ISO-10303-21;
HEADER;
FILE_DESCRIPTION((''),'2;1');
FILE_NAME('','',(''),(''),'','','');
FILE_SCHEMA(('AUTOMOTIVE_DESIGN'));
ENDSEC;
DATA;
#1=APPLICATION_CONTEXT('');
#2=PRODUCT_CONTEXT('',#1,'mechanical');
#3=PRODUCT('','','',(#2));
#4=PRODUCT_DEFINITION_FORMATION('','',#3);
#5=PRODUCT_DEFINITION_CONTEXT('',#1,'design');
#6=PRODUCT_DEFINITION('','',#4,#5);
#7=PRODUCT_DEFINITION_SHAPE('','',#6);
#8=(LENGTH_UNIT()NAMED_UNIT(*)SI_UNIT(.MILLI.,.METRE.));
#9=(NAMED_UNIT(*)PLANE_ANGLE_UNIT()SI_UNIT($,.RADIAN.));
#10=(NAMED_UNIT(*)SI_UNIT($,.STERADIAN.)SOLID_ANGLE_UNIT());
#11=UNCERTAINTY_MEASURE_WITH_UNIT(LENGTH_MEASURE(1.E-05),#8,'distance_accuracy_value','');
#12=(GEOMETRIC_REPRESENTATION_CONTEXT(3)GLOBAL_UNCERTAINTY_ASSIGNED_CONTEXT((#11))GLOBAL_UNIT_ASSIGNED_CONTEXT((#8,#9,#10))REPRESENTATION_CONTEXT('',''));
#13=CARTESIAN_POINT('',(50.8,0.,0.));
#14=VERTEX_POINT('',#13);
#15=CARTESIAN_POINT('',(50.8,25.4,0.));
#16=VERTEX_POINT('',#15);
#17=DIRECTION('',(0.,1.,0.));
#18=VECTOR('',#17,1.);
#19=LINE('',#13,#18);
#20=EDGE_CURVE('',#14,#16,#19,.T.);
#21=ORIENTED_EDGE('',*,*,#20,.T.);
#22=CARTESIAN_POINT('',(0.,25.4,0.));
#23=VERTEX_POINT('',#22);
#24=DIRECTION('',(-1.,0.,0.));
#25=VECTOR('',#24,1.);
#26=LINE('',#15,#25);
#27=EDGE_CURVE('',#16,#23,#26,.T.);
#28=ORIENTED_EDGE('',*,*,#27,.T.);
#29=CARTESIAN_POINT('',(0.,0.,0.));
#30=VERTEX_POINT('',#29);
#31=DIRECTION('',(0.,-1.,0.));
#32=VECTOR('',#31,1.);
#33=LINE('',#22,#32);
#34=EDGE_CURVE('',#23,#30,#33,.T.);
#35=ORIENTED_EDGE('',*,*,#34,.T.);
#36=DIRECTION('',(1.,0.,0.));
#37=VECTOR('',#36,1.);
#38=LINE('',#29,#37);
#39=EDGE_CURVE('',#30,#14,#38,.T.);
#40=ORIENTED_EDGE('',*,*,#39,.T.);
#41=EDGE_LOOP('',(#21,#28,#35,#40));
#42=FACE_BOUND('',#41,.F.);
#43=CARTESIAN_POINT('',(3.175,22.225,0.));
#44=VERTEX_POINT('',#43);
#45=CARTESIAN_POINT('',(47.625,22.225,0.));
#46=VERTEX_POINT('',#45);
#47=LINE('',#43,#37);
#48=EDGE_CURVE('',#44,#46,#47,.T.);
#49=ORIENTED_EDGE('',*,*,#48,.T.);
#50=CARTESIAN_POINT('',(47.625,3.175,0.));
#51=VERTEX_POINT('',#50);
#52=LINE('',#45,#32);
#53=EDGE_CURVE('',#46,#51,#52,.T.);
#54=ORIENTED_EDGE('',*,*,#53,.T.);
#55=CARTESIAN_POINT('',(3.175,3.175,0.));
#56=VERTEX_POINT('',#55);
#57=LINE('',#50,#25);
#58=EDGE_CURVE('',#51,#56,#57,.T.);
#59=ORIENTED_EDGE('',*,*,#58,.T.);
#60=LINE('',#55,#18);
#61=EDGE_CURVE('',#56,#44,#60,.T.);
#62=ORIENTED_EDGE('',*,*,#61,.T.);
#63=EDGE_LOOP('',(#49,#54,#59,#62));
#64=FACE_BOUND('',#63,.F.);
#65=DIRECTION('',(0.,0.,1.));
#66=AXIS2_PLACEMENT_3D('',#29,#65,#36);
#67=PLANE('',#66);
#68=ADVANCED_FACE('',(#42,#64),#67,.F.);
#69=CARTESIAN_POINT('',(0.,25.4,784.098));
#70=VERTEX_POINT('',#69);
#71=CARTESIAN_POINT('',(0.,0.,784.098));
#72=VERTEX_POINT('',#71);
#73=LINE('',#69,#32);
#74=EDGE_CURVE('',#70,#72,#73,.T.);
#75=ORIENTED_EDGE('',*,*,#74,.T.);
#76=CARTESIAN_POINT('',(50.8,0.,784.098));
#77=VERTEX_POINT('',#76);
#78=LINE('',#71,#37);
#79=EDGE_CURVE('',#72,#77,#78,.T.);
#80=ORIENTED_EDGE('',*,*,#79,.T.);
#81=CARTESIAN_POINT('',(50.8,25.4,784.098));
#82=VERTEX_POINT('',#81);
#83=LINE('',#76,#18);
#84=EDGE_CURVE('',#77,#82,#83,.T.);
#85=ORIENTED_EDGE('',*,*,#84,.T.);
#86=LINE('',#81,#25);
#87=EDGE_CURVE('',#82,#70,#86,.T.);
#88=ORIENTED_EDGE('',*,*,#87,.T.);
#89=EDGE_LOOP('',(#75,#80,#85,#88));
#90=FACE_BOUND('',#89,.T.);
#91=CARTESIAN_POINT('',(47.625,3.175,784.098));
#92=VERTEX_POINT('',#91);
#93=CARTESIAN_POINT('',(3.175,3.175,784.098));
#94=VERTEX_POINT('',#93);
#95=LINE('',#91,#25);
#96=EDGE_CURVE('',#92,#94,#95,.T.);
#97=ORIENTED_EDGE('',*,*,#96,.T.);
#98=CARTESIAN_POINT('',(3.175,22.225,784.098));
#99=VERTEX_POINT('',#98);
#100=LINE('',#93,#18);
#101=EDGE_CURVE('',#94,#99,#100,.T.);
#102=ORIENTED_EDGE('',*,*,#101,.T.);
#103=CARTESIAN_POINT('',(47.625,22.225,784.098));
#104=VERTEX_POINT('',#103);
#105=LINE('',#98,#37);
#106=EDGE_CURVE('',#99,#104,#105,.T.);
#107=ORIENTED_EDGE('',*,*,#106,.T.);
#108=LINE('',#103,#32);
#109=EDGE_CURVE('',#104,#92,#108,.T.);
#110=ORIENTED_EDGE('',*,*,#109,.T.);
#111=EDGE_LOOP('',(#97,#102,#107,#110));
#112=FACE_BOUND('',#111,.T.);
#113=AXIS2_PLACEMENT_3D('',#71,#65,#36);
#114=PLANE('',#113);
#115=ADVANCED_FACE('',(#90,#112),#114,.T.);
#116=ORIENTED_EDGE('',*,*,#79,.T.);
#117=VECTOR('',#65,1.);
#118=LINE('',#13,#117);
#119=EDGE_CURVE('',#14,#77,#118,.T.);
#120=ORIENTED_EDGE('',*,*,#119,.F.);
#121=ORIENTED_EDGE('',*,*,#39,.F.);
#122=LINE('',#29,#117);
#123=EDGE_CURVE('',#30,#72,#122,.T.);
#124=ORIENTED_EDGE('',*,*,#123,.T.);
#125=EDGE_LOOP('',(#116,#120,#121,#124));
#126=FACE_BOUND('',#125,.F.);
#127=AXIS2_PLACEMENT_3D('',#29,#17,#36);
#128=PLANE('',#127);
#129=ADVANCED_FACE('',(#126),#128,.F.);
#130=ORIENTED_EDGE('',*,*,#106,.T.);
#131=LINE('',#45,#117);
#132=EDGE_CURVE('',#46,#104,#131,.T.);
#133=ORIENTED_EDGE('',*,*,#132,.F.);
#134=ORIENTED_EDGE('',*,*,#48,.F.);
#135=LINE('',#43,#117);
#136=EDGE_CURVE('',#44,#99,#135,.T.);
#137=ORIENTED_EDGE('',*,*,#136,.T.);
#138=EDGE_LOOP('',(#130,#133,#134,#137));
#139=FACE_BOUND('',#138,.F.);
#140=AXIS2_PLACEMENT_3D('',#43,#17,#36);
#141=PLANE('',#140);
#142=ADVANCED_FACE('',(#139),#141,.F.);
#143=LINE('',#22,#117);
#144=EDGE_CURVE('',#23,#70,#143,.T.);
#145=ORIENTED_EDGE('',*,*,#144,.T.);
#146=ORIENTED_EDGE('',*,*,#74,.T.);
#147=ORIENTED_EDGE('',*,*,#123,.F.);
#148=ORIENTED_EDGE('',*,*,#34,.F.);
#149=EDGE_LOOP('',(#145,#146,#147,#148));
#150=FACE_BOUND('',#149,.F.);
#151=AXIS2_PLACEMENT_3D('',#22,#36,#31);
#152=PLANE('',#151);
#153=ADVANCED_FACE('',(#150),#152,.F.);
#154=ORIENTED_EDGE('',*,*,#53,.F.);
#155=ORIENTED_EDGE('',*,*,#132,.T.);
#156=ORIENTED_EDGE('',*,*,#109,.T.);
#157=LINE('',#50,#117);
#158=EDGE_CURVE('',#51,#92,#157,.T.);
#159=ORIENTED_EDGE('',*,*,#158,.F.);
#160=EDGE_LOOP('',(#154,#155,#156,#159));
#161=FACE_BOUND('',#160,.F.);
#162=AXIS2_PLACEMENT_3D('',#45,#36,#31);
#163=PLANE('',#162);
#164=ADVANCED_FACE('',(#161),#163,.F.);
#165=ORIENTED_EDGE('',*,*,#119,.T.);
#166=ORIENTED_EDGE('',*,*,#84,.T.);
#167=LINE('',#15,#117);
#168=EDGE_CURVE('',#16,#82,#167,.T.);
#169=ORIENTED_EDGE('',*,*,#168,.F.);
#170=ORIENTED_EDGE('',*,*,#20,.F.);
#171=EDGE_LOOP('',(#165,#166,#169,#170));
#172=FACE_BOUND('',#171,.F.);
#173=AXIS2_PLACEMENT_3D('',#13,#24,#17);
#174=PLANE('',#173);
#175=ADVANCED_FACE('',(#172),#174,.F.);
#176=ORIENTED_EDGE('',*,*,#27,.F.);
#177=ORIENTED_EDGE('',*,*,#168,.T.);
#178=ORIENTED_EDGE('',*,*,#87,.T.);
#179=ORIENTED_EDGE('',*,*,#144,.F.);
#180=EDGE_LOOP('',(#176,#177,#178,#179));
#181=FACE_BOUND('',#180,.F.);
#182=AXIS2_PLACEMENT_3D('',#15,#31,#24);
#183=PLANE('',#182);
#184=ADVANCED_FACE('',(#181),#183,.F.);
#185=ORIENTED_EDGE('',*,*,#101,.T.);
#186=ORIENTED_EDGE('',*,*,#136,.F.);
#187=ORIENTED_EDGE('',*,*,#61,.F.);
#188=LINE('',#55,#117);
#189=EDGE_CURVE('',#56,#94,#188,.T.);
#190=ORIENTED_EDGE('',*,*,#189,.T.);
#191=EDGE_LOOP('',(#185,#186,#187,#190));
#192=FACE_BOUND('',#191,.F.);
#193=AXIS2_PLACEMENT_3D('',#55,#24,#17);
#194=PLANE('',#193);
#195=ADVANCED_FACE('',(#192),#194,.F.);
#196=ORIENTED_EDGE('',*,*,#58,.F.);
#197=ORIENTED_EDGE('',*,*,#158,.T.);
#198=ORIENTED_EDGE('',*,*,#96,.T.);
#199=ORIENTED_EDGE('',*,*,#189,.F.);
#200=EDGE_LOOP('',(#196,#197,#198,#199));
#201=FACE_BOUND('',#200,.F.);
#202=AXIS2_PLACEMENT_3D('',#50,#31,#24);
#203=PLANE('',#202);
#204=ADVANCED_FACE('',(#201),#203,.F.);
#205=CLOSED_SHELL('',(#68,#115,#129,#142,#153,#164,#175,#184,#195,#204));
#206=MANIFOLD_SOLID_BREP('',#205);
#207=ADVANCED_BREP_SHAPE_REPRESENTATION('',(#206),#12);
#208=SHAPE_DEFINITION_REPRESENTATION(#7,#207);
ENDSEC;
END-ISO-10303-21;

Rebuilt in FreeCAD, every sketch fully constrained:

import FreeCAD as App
import Part
import Sketcher
from FreeCAD import Vector
Q = App.Units.Quantity


def add_polygon(sketch, points):
    """Adds a closed chain of lines whose ends are joined by coincident constraints."""
    first, n = sketch.GeometryCount, len(points)
    for a, b in zip(points, points[1:] + points[:1]):
        sketch.addGeometry(Part.LineSegment(App.Vector(*a, 0), App.Vector(*b, 0)), False)
    for i in range(n):
        sketch.addConstraint(Sketcher.Constraint("Coincident", first + i, 2, first + (i + 1) % n, 1))

doc = App.newDocument("Part")
params = doc.addObject("Spreadsheet::Sheet", "Params")
for row, (alias, value) in enumerate([
    ("sketch1_width", "2 in"),
    ("sketch1_height", "1 in"),
    ("pad1_length", "30.87 in"),
], start=1):
    params.set(f"A{row}", alias)
    params.set(f"B{row}", "=" + value)
    params.setAlias(f"B{row}", alias)

body = doc.addObject("PartDesign::Body", "Body")

# Sketch on XY plane
sketch1 = doc.addObject("Sketcher::SketchObject", "Sketch")
body.addObject(sketch1)
sketch1.AttachmentSupport = (doc.XY_Plane, [""])
sketch1.MapMode = "FlatFace"
add_polygon(sketch1, [(0, 25), (0, 0), (51, 0), (51, 25)])  # lines 0-3
add_polygon(sketch1, [(3, 3), (3, 22), (48, 22), (48, 3)])  # lines 4-7
sketch1.addConstraint([
    Sketcher.Constraint("Vertical", 0),
    Sketcher.Constraint("Horizontal", 1),
    Sketcher.Constraint("Vertical", 2),
    Sketcher.Constraint("Horizontal", 3),
    Sketcher.Constraint("Vertical", 4),
    Sketcher.Constraint("Horizontal", 5),
    Sketcher.Constraint("Vertical", 6),
    Sketcher.Constraint("Horizontal", 7),
    Sketcher.Constraint("Coincident", 0, 2, -1, 1),
    Sketcher.Constraint("DistanceX", 1, 1, 1, 2, Q("2 in")),
    Sketcher.Constraint("DistanceY", 0, 2, 0, 1, Q("1 in")),
    Sketcher.Constraint("DistanceX", -1, 1, 4, 2, Q("0.125 in")),
    Sketcher.Constraint("DistanceY", -1, 1, 6, 2, Q("0.125 in")),
    Sketcher.Constraint("DistanceY", 4, 2, 3, 2, Q("0.125 in")),
    Sketcher.Constraint("DistanceX", 5, 2, 2, 2, Q("0.125 in")),
])
sketch1.setExpression("Constraints[17]", "Params.sketch1_width")
sketch1.setExpression("Constraints[18]", "Params.sketch1_height")
pad1 = doc.addObject("PartDesign::Pad", "Pad")
body.addObject(pad1)
pad1.Profile = sketch1
pad1.setExpression("Length", "Params.pad1_length")

doc.recompute()
